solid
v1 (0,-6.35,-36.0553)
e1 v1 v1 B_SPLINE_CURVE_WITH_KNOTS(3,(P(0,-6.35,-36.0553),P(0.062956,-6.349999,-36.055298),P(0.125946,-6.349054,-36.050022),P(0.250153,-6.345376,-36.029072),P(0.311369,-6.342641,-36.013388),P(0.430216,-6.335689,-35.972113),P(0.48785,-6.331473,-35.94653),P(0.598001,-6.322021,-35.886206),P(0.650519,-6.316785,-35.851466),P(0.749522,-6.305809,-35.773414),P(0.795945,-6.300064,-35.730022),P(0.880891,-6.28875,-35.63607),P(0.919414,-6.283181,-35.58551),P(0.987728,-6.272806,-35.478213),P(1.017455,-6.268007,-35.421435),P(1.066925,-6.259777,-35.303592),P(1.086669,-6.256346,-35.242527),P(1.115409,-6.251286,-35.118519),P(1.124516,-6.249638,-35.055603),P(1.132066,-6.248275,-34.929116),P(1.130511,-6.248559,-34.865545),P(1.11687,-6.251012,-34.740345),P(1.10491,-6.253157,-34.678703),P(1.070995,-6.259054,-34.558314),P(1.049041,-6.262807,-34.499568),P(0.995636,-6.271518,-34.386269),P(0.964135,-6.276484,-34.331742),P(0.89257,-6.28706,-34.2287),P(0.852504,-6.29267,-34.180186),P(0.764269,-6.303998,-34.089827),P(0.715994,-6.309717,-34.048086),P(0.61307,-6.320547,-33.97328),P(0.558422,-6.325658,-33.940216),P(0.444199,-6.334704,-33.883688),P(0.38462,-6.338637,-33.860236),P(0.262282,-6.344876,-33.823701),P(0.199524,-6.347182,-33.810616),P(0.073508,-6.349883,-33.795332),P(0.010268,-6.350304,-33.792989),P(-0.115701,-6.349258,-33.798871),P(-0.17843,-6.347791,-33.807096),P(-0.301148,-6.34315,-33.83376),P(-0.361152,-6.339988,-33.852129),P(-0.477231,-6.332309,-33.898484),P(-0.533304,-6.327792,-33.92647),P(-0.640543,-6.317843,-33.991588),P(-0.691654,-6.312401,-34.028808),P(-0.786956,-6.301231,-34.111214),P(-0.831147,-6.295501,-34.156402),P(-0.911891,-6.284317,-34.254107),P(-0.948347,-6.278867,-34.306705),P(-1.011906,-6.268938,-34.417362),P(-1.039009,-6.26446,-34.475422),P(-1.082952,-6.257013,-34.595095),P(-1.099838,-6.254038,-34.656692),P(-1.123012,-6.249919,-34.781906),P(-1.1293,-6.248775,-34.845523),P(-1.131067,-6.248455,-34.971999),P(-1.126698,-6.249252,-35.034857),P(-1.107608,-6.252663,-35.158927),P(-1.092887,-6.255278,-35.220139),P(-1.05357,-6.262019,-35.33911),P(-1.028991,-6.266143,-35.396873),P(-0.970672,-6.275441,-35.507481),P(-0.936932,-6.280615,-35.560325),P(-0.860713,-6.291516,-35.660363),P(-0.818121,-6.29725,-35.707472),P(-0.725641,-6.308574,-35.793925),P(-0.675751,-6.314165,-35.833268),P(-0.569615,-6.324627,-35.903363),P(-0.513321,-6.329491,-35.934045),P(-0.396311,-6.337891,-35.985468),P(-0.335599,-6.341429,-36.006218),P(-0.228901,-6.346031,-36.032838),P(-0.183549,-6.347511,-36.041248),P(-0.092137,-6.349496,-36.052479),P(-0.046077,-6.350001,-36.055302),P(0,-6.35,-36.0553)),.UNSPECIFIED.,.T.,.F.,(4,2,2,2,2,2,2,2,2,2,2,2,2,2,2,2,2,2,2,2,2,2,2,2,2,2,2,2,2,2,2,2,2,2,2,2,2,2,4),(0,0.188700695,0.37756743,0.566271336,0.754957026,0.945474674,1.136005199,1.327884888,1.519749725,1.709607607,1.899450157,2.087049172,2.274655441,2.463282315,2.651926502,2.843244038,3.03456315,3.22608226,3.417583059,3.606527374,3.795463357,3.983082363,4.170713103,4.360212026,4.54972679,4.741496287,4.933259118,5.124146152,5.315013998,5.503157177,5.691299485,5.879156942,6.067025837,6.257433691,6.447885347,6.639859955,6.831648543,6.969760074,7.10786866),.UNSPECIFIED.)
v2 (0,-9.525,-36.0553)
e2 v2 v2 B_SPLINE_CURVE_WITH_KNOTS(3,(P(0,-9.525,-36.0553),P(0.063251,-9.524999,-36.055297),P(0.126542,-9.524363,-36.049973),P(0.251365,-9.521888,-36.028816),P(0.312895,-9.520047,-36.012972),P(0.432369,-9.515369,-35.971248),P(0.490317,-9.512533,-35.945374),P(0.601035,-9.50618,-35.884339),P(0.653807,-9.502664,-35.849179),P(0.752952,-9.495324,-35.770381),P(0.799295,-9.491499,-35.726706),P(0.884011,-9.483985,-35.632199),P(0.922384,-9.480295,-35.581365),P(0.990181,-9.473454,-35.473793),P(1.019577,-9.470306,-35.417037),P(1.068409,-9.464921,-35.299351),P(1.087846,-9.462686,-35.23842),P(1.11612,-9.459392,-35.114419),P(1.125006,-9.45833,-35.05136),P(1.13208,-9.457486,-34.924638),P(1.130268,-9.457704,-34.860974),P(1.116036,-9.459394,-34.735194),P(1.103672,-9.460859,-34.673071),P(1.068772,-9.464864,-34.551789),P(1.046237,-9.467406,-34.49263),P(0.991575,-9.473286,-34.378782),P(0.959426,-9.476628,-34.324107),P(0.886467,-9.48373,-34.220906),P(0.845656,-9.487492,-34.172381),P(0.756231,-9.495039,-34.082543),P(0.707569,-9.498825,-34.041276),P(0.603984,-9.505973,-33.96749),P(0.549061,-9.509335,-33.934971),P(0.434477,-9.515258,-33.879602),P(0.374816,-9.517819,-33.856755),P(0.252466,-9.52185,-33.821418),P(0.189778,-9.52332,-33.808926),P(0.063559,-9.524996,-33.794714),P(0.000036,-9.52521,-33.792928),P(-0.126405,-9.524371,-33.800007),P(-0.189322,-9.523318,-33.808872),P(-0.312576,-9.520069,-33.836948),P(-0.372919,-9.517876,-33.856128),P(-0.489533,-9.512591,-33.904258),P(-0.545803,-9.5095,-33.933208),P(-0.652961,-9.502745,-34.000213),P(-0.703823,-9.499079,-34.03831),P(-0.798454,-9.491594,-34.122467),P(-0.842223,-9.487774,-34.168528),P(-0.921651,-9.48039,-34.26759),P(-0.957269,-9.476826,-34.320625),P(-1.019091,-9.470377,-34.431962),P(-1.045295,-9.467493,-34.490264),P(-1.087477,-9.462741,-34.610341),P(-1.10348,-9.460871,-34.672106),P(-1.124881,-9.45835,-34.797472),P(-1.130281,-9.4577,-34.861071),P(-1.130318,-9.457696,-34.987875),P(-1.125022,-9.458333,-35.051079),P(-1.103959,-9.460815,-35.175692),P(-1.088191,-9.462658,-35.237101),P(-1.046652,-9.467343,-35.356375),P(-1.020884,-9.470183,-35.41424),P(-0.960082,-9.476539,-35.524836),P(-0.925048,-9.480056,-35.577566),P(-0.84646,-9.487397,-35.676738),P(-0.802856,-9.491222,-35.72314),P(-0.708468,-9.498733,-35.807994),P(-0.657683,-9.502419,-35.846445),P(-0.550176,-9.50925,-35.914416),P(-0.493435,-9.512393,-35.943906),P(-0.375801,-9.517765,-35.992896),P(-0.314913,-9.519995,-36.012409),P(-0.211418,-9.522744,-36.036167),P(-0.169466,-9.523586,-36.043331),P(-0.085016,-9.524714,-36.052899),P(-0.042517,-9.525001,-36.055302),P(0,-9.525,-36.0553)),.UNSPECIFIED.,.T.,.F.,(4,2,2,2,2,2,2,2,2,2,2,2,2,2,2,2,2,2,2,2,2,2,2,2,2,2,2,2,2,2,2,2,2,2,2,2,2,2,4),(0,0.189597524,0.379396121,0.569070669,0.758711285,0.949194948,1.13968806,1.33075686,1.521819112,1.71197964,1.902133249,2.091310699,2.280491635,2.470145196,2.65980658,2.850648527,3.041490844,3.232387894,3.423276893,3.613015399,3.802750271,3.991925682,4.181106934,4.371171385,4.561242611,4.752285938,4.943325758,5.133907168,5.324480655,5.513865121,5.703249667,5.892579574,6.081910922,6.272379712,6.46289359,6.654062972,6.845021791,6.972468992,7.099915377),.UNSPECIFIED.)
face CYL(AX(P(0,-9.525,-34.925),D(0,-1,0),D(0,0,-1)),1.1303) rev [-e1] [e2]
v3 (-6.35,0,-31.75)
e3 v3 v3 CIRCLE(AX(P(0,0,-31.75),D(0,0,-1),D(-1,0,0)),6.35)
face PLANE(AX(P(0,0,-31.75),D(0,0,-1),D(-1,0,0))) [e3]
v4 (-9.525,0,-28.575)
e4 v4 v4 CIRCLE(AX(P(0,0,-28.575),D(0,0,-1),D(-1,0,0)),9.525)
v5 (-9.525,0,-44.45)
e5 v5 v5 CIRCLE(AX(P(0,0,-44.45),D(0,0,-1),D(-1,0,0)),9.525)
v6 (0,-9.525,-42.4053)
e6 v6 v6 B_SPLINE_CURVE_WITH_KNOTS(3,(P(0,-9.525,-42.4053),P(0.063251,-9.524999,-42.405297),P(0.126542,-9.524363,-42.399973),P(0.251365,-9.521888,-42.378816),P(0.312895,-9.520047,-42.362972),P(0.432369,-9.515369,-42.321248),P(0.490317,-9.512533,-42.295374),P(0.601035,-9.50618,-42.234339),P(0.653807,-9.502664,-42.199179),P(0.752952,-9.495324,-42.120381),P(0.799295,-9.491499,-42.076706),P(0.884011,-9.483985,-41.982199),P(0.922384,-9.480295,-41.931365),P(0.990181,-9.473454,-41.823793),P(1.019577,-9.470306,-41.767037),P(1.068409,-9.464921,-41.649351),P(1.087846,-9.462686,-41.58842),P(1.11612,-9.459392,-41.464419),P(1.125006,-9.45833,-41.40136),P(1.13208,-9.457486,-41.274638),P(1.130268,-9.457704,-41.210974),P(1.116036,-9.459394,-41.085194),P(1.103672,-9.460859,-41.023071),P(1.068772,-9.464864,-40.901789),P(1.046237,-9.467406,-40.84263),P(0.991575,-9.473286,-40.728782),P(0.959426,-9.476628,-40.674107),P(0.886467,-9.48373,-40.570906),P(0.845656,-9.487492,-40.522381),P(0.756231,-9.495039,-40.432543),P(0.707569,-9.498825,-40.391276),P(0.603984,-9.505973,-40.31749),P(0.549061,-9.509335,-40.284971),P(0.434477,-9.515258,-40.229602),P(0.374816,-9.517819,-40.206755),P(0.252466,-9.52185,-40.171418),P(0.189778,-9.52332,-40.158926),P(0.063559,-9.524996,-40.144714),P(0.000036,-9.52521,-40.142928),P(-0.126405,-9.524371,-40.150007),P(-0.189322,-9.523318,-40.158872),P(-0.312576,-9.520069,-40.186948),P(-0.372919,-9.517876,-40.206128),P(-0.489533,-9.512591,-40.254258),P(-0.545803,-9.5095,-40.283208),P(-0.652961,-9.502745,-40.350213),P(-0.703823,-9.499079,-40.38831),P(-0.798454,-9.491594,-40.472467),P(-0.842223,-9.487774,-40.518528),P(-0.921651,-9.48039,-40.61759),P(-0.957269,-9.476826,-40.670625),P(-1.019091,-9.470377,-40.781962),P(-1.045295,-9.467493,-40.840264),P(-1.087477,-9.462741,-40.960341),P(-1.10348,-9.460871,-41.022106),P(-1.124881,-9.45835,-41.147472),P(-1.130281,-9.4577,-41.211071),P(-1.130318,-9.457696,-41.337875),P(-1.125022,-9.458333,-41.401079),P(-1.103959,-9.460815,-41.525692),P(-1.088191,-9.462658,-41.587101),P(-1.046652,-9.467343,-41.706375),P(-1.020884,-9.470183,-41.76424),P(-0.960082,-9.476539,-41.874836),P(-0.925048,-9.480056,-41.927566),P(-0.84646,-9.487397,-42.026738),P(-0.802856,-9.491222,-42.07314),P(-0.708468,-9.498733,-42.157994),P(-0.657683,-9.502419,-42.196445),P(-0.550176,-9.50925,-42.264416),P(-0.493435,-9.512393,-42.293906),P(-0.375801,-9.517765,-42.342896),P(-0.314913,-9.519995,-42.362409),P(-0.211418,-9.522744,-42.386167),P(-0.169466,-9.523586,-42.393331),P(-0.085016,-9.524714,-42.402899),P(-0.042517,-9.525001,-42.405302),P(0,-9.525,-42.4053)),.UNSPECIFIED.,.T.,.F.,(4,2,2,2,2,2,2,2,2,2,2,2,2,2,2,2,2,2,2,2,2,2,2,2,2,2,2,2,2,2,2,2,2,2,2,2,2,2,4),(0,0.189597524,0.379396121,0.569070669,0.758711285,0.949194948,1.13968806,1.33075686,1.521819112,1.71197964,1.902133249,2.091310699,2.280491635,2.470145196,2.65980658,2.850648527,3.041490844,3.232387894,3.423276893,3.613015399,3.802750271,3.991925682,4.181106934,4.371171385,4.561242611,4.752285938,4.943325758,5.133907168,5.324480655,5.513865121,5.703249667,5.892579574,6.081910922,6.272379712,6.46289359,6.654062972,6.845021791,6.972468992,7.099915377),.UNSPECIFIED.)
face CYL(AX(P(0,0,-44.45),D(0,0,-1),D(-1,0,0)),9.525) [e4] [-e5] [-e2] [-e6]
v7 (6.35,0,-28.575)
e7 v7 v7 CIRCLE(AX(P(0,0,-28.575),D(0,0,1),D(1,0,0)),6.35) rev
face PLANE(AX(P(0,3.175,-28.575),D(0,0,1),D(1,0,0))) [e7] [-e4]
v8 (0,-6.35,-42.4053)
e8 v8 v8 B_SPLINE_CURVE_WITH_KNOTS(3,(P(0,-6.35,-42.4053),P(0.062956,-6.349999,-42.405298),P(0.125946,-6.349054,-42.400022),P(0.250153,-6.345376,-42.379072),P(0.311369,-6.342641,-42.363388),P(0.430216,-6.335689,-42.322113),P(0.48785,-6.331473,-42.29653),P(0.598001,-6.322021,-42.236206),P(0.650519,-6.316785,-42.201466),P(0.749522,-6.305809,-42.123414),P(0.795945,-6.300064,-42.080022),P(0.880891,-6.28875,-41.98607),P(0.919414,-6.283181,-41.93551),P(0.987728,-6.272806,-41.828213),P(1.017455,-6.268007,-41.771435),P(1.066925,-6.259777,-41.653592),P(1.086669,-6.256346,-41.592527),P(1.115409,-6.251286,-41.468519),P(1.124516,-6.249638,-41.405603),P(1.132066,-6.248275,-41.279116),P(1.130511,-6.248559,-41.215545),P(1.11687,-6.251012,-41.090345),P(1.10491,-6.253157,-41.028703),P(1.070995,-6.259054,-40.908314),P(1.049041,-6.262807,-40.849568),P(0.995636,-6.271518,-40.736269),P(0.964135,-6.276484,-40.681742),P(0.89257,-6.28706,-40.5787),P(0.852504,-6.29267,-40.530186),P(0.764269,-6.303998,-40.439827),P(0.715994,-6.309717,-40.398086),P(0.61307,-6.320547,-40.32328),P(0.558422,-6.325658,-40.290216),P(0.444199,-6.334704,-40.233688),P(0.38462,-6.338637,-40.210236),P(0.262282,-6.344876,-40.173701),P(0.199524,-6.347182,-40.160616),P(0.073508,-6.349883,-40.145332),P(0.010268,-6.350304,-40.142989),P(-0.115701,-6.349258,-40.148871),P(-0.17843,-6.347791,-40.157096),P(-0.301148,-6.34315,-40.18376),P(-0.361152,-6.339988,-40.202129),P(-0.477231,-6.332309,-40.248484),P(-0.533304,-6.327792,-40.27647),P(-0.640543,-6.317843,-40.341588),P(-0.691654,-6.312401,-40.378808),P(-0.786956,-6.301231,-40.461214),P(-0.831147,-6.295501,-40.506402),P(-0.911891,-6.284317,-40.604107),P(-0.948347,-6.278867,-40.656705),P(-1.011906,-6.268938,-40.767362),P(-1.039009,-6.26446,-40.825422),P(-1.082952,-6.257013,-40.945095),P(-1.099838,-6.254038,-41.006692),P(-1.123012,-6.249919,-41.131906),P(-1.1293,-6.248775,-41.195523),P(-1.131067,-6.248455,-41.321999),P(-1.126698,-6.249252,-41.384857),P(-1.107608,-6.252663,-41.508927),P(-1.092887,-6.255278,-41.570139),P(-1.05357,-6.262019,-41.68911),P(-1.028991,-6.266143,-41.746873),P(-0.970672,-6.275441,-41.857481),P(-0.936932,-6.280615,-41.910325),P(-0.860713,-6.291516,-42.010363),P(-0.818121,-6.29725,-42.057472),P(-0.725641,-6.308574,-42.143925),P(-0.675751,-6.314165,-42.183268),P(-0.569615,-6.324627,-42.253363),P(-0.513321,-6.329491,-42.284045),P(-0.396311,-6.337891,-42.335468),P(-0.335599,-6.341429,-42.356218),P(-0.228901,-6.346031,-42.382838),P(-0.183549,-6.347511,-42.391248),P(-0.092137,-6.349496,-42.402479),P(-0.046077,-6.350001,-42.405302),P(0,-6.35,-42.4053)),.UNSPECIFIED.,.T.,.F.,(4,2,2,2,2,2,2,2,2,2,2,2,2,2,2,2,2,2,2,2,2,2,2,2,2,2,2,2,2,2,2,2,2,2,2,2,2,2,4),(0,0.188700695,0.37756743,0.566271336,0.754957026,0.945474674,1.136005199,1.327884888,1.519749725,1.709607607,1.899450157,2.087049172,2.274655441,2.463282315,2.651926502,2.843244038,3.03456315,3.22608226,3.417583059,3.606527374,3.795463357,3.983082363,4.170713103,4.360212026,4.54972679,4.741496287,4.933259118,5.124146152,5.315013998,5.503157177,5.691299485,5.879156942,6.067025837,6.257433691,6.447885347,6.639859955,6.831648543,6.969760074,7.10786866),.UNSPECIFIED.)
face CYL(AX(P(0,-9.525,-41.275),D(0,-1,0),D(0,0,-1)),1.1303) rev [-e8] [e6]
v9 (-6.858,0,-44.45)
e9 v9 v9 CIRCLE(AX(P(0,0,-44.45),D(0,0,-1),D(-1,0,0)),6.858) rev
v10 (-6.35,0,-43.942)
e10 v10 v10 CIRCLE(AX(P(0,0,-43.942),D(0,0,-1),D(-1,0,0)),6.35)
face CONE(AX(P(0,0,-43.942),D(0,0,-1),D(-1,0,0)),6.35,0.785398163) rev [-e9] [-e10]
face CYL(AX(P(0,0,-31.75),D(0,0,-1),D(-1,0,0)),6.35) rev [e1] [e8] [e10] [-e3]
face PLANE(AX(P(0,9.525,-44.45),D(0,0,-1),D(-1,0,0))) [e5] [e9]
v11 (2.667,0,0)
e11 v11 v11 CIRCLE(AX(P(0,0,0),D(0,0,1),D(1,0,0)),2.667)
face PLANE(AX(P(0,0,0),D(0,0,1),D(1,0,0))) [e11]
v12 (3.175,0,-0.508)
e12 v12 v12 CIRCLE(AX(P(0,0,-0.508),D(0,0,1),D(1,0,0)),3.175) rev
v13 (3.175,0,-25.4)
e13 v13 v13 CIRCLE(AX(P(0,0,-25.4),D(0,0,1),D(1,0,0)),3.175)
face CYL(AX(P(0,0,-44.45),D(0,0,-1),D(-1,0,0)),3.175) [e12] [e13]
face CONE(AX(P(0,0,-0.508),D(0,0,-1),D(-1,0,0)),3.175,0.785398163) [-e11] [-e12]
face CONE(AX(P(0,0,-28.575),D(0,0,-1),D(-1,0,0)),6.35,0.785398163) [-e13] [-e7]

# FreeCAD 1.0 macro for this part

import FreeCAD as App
import Part
import Sketcher

V = App.Vector
Q = App.Units.Quantity


def edges_at(feature, points):
    """Names of the edges that pass closest to the given points."""
    edges = feature.Shape.Edges
    near = lambda p: min(range(len(edges)), key=lambda i: edges[i].distToShape(Part.Vertex(*p))[0])
    return sorted({f"Edge{near(p) + 1}" for p in points})


def add_polygon(sketch, points):
    """Adds a closed chain of lines whose ends are joined by coincident constraints."""
    first, n = sketch.GeometryCount, len(points)
    for a, b in zip(points, points[1:] + points[:1]):
        sketch.addGeometry(Part.LineSegment(App.Vector(*a, 0), App.Vector(*b, 0)), False)
    for i in range(n):
        sketch.addConstraint(Sketcher.Constraint("Coincident", first + i, 2, first + (i + 1) % n, 1))

doc = App.newDocument("Part")
body = doc.addObject("PartDesign::Body", "Body")

sketch1 = body.newObject("Sketcher::SketchObject", "Sketch")
sketch1.AttachmentSupport = (doc.getObject("YZ_Plane"), [""])
sketch1.MapMode = "FlatFace"
add_polygon(sketch1, [(3.2, 0), (0, 0), (0, -44.5), (9.5, -44.5), (9.5, -28.6), (3.2, -28.6)])
sketch1.addConstraint([
    Sketcher.Constraint("Horizontal", 0),
    Sketcher.Constraint("Vertical", 1),
    Sketcher.Constraint("Horizontal", 2),
    Sketcher.Constraint("Vertical", 3),
    Sketcher.Constraint("Horizontal", 4),
    Sketcher.Constraint("Vertical", 5),
    Sketcher.Constraint("Coincident", 0, 2, -1, 1),
    Sketcher.Constraint("DistanceX", 4, 2, 4, 1, Q("0.25 in")),
    Sketcher.Constraint("DistanceY", 1, 2, 1, 1, Q("1.75 in")),
    Sketcher.Constraint("DistanceX", 0, 2, 0, 1, Q("0.125 in")),
    Sketcher.Constraint("DistanceY", 3, 1, 3, 2, Q("0.625 in")),
])
revolution = body.newObject("PartDesign::Revolution", "Revolution")
revolution.Profile = sketch1
revolution.ReferenceAxis = (sketch1, ["V_Axis"])
revolution.Angle = 360

sketch2 = body.newObject("Sketcher::SketchObject", "Sketch001")
sketch2.AttachmentSupport = (doc.getObject("XY_Plane"), [""])
sketch2.MapMode = "FlatFace"
sketch2.AttachmentOffset = App.Placement(V(0, 0, -1.75 * 25.4), App.Rotation())
sketch2.addGeometry(Part.Circle(V(0, 0, 0), V(0, 0, 1), 6), False)
sketch2.addConstraint([
    Sketcher.Constraint("Coincident", 0, 3, -1, 1),
    Sketcher.Constraint("Diameter", 0, Q("0.5 in")),
])
pocket1 = body.newObject("PartDesign::Pocket", "Pocket")
pocket1.Profile = sketch2
pocket1.Length = Q("0.5 in")
pocket1.Reversed = True

sketch3 = body.newObject("Sketcher::SketchObject", "Sketch002")
sketch3.AttachmentSupport = (doc.getObject("XZ_Plane"), [""])
sketch3.MapMode = "FlatFace"
sketch3.AttachmentOffset = App.Placement(V(0, 0, 0.375 * 25.4), App.Rotation())
sketch3.addGeometry(Part.Circle(V(0, -34.9, 0), V(0, 0, 1), 1.1), False)
sketch3.addConstraint([
    Sketcher.Constraint("PointOnObject", 0, 3, -2),
    Sketcher.Constraint("Diameter", 0, Q("0.089 in")),
    Sketcher.Constraint("DistanceY", 0, 3, -1, 1, Q("1.375 in")),
])
pocket2 = body.newObject("PartDesign::Pocket", "Pocket001")
pocket2.Profile = sketch3
pocket2.Length = 3.276406

sketch4 = body.newObject("Sketcher::SketchObject", "Sketch003")
sketch4.AttachmentSupport = (doc.getObject("XZ_Plane"), [""])
sketch4.MapMode = "FlatFace"
sketch4.AttachmentOffset = App.Placement(V(0, 0, 0.375 * 25.4), App.Rotation())
sketch4.addGeometry(Part.Circle(V(0, -41.3, 0), V(0, 0, 1), 1.1), False)
sketch4.addConstraint([
    Sketcher.Constraint("PointOnObject", 0, 3, -2),
    Sketcher.Constraint("Diameter", 0, Q("0.089 in")),
    Sketcher.Constraint("DistanceY", 0, 3, -1, 1, Q("1.625 in")),
])
pocket3 = body.newObject("PartDesign::Pocket", "Pocket002")
pocket3.Profile = sketch4
pocket3.Type = "UpToFirst"
doc.recompute()

chamfer = body.newObject("PartDesign::Chamfer", "Chamfer")
chamfer.Base = (pocket3, edges_at(pocket3, [(3.175, 0, 0)]))
chamfer.Size = Q("0.02 in")
doc.recompute()

chamfer2 = body.newObject("PartDesign::Chamfer", "Chamfer001")
chamfer2.Base = (chamfer, edges_at(chamfer, [(3.175, 0, -28.575)]))
chamfer2.Size = Q("0.125 in")
doc.recompute()

chamfer3 = body.newObject("PartDesign::Chamfer", "Chamfer002")
chamfer3.Base = (chamfer2, edges_at(chamfer2, [(6.35, 0, -44.45)]))
chamfer3.Size = Q("0.02 in")

doc.recompute()
